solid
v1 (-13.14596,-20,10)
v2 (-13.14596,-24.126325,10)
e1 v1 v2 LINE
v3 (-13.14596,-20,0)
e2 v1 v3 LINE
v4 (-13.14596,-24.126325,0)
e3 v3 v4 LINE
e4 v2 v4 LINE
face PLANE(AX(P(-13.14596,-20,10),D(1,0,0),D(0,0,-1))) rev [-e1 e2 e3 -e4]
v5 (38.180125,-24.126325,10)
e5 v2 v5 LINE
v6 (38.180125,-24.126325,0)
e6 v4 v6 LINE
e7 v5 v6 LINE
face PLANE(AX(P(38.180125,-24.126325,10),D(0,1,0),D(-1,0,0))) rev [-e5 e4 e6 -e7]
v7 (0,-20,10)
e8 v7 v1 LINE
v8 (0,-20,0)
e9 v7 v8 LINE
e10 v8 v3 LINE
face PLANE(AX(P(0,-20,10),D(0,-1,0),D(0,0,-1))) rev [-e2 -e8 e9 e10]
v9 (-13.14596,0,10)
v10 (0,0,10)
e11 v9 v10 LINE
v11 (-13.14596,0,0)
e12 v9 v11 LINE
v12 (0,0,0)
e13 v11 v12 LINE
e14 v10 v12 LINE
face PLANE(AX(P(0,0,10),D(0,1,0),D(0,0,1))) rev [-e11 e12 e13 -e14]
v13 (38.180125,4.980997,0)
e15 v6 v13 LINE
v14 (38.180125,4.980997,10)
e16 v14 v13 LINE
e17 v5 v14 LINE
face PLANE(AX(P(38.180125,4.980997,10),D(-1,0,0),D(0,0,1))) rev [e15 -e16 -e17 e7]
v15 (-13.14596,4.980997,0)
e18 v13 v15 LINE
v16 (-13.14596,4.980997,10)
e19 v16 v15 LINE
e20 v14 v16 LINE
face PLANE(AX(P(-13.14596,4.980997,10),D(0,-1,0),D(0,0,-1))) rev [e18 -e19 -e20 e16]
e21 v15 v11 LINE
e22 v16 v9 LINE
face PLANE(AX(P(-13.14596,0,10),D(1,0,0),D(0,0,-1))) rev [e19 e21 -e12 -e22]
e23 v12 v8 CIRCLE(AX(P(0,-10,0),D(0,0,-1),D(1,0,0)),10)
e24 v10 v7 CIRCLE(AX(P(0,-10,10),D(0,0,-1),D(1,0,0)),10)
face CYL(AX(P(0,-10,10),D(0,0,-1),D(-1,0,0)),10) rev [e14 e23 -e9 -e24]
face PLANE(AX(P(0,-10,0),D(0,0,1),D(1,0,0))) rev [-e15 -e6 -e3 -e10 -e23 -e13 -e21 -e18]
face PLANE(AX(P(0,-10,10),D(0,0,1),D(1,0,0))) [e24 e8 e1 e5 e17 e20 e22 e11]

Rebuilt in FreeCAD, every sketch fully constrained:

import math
import FreeCAD as App
import Part
import Sketcher
Q = App.Units.Quantity

doc = App.newDocument("Part")
body = doc.addObject("PartDesign::Body", "Body")

sketch1 = doc.addObject("Sketcher::SketchObject", "Sketch")
body.addObject(sketch1)
sketch1.AttachmentSupport = (doc.XY_Plane, [""])
sketch1.MapMode = "FlatFace"
sketch1.addGeometry([
    Part.LineSegment(App.Vector(38.180125, -24.126325, 0), App.Vector(38.180125, 4.980997, 0)),
    Part.LineSegment(App.Vector(38.180125, 4.980997, 0), App.Vector(-13.14596, 4.980997, 0)),
    Part.LineSegment(App.Vector(-13.14596, 4.980997, 0), App.Vector(-13.14596, 0, 0)),
    Part.LineSegment(App.Vector(-13.14596, 0, 0), App.Vector(0, 0, 0)),
    Part.ArcOfCircle(Part.Circle(App.Vector(0, -10, 0), App.Vector(0, 0, 1), 10), math.radians(-90), math.radians(90)),
    Part.LineSegment(App.Vector(0, -20, 0), App.Vector(-13.14596, -20, 0)),
    Part.LineSegment(App.Vector(-13.14596, -20, 0), App.Vector(-13.14596, -24.126325, 0)),
    Part.LineSegment(App.Vector(-13.14596, -24.126325, 0), App.Vector(38.180125, -24.126325, 0)),
], False)
sketch1.addConstraint([
    Sketcher.Constraint("Coincident", 0, 2, 1, 1),
    Sketcher.Constraint("Coincident", 1, 2, 2, 1),
    Sketcher.Constraint("Coincident", 2, 2, 3, 1),
    Sketcher.Constraint("Tangent", 3, 2, 4, 2),
    Sketcher.Constraint("Tangent", 4, 1, 5, 1),
    Sketcher.Constraint("Coincident", 5, 2, 6, 1),
    Sketcher.Constraint("Coincident", 6, 2, 7, 1),
    Sketcher.Constraint("Coincident", 7, 2, 0, 1),
    Sketcher.Constraint("Vertical", 0),
    Sketcher.Constraint("Horizontal", 1),
    Sketcher.Constraint("Vertical", 2),
    Sketcher.Constraint("Horizontal", 3),
    Sketcher.Constraint("Horizontal", 5),
    Sketcher.Constraint("Vertical", 6),
    Sketcher.Constraint("Horizontal", 7),
    Sketcher.Constraint("Coincident", 3, 2, -1, 1),
    Sketcher.Constraint("Vertical", 2, 2, 5, 2),
    Sketcher.Constraint("Radius", 4, Q("10 mm")),
    Sketcher.Constraint("DistanceX", 3, 1, 3, 2, Q("13.14596 mm")),
    Sketcher.Constraint("DistanceX", 1, 2, 1, 1, Q("51.326085 mm")),
    Sketcher.Constraint("DistanceY", 0, 1, 0, 2, Q("29.107323 mm")),
    Sketcher.Constraint("DistanceY", 2, 2, 2, 1, Q("4.980997 mm")),
])
pad1 = doc.addObject("PartDesign::Pad", "Pad")
body.addObject(pad1)
pad1.Profile = sketch1
pad1.Length = 10

doc.recompute()
